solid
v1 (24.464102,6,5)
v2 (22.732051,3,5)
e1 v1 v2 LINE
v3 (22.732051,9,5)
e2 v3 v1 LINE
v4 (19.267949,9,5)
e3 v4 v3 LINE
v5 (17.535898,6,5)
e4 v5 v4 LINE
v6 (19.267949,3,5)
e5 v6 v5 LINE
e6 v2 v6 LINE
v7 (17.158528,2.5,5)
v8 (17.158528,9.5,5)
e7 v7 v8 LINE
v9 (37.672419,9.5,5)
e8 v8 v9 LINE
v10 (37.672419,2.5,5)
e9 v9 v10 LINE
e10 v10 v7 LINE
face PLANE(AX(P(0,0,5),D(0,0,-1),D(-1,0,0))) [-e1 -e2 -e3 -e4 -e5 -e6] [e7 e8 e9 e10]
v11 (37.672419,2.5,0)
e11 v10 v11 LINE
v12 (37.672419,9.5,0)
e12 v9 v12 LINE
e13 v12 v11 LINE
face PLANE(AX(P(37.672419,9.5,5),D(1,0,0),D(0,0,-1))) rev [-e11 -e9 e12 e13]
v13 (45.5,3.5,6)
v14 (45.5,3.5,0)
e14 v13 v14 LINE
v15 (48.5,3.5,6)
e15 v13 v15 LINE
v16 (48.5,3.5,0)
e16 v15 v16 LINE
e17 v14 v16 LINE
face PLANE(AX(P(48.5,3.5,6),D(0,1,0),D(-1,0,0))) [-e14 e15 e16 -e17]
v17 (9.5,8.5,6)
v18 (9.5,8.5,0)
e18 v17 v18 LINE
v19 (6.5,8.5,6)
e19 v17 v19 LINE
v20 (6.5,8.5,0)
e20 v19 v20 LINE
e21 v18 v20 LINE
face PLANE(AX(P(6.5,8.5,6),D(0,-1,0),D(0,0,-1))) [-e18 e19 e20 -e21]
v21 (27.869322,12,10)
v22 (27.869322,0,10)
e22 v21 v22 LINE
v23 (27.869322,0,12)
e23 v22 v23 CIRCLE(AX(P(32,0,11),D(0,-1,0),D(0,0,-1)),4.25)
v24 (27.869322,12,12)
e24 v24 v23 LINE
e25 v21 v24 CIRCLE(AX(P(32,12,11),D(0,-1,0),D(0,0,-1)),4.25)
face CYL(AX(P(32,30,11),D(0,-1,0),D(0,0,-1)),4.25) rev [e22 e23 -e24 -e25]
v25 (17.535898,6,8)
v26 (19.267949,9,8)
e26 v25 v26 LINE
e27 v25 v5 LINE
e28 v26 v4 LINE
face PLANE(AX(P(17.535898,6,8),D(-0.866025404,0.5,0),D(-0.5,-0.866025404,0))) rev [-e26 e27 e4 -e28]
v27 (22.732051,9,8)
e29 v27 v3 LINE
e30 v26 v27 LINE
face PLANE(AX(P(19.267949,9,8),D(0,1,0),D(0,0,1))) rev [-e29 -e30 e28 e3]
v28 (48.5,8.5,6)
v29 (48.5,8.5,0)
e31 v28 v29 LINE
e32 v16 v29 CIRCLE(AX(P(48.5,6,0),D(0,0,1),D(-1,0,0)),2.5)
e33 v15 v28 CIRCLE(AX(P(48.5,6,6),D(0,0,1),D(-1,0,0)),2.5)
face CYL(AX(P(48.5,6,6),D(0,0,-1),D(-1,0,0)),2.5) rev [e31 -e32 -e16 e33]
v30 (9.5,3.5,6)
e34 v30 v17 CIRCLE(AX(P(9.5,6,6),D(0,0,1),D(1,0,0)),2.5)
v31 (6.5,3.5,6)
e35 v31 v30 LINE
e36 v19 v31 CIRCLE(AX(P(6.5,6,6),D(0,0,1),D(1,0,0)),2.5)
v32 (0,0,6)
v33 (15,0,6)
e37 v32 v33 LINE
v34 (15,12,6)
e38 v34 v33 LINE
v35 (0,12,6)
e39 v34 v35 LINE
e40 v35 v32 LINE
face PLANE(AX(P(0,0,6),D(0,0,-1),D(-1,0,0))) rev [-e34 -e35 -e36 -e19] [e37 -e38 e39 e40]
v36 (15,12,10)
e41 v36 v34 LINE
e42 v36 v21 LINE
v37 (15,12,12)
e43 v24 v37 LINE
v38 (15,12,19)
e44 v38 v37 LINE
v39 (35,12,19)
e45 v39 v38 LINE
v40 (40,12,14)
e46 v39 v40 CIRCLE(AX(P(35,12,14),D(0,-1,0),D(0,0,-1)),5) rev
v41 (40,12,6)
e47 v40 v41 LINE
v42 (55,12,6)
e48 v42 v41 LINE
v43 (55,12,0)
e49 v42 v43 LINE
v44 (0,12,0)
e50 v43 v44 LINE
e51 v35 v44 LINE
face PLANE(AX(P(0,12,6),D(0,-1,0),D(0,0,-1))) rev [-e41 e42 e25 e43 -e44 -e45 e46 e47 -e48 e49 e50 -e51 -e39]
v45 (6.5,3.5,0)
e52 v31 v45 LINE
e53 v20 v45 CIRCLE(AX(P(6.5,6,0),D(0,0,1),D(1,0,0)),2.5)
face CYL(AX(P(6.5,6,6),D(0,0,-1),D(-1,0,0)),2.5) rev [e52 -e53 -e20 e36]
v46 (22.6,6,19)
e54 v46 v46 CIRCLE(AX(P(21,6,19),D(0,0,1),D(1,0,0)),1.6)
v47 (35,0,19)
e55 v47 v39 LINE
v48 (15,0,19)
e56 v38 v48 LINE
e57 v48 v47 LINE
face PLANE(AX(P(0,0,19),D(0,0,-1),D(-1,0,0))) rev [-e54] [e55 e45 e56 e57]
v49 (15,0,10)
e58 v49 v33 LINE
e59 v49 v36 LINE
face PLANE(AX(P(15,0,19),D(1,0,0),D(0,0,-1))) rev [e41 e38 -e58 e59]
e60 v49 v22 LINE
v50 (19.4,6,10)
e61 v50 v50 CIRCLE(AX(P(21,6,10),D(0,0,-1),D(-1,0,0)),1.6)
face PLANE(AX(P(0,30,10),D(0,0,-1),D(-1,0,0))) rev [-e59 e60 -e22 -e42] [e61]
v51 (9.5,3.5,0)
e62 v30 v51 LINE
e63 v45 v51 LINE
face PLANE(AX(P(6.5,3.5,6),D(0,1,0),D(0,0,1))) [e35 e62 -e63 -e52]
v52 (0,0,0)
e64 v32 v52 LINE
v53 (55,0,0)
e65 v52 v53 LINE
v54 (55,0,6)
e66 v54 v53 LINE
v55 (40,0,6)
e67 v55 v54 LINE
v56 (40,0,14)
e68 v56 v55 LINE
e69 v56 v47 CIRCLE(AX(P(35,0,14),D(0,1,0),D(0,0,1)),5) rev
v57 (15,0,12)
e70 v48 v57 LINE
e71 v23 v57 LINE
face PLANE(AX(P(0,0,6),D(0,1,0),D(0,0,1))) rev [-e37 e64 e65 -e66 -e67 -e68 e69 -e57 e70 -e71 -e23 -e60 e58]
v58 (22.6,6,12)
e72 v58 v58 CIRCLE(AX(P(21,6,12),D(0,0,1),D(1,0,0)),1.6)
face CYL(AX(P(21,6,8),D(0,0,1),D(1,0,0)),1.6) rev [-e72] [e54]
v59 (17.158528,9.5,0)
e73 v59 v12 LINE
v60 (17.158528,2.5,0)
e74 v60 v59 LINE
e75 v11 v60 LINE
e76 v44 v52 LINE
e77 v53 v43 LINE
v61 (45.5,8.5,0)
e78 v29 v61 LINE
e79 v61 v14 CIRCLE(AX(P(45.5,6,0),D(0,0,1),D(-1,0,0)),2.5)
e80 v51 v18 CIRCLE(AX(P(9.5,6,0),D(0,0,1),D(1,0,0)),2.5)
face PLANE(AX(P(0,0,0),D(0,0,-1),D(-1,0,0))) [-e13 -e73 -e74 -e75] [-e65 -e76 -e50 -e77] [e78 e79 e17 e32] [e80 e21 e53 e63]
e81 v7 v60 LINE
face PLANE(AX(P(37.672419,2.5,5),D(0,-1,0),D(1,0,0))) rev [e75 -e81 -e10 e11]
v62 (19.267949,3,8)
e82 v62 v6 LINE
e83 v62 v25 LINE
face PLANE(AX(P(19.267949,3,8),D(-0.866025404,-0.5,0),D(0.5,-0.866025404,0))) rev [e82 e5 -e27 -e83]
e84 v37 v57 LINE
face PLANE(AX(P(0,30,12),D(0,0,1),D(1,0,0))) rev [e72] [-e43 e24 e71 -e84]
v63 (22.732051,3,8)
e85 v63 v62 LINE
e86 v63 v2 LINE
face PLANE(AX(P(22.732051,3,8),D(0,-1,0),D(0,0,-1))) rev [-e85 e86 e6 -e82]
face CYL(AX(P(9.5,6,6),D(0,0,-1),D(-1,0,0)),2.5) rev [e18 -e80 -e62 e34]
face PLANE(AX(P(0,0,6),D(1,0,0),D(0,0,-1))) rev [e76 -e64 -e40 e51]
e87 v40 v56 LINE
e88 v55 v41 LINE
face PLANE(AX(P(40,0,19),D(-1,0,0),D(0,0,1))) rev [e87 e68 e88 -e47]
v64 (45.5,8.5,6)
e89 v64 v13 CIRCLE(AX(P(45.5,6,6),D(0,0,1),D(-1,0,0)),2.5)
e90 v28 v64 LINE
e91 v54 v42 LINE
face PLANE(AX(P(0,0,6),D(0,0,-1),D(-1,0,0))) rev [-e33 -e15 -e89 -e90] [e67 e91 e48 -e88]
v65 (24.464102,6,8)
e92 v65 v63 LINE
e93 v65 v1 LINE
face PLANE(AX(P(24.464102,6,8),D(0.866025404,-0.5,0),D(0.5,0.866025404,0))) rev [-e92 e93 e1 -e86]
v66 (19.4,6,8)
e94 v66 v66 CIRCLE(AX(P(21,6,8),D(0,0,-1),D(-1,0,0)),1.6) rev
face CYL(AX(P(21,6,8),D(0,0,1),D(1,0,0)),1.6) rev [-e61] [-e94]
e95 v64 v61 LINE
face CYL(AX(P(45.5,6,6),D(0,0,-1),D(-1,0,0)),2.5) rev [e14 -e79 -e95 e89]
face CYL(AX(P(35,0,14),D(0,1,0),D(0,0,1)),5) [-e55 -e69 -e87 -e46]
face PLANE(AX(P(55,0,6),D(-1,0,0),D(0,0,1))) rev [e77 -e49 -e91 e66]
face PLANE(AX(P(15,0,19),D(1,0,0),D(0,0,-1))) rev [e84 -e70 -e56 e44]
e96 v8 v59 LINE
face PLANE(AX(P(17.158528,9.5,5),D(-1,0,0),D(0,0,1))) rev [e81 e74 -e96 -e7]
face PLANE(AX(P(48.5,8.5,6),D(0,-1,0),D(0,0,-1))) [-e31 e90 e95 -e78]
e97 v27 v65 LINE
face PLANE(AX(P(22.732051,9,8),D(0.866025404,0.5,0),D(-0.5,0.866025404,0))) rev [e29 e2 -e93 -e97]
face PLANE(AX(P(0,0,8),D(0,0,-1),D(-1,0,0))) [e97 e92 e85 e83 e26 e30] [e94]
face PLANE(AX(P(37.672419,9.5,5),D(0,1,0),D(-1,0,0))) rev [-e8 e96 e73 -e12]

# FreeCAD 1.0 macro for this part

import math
import FreeCAD as App
import Part
import Sketcher

V = App.Vector
Q = App.Units.Quantity


def edges_at(feature, points):
    """Names of the edges that pass closest to the given points."""
    edges = feature.Shape.Edges
    near = lambda p: min(range(len(edges)), key=lambda i: edges[i].distToShape(Part.Vertex(*p))[0])
    return sorted({f"Edge{near(p) + 1}" for p in points})

doc = App.newDocument("Part")
body = doc.addObject("PartDesign::Body", "Body")

sketch1 = body.newObject("Sketcher::SketchObject", "Sketch")
sketch1.AttachmentSupport = (doc.getObject("XY_Plane"), [""])
sketch1.MapMode = "FlatFace"
sketch1.addGeometry(Part.LineSegment(V(0, 12, 0), V(0, 0, 0)), False)
sketch1.addGeometry(Part.LineSegment(V(0, 0, 0), V(55, 0, 0)), False)
sketch1.addGeometry(Part.LineSegment(V(55, 0, 0), V(55, 12, 0)), False)
sketch1.addGeometry(Part.LineSegment(V(55, 12, 0), V(0, 12, 0)), False)
sketch1.addGeometry(Part.ArcOfCircle(Part.Circle(V(6.5, 6, 0), V(0, 0, 1), 2.5), math.radians(90), math.radians(270)), False)
sketch1.addGeometry(Part.LineSegment(V(6.5, 8.5, 0), V(9.5, 8.5, 0)), False)
sketch1.addGeometry(Part.ArcOfCircle(Part.Circle(V(9.5, 6, 0), V(0, 0, 1), 2.5), math.radians(-90), math.radians(90)), False)
sketch1.addGeometry(Part.LineSegment(V(9.5, 3.5, 0), V(6.5, 3.5, 0)), False)
sketch1.addGeometry(Part.LineSegment(V(45.5, 8.5, 0), V(48.5, 8.5, 0)), False)
sketch1.addGeometry(Part.ArcOfCircle(Part.Circle(V(48.5, 6, 0), V(0, 0, 1), 2.5), math.radians(-90), math.radians(90)), False)
sketch1.addGeometry(Part.LineSegment(V(48.5, 3.5, 0), V(45.5, 3.5, 0)), False)
sketch1.addGeometry(Part.ArcOfCircle(Part.Circle(V(45.5, 6, 0), V(0, 0, 1), 2.5), math.radians(90), math.radians(270)), False)
sketch1.addConstraint(Sketcher.Constraint("Coincident", 0, 2, 1, 1))
sketch1.addConstraint(Sketcher.Constraint("Coincident", 1, 2, 2, 1))
sketch1.addConstraint(Sketcher.Constraint("Coincident", 2, 2, 3, 1))
sketch1.addConstraint(Sketcher.Constraint("Coincident", 3, 2, 0, 1))
sketch1.addConstraint(Sketcher.Constraint("Tangent", 4, 1, 5, 1))
sketch1.addConstraint(Sketcher.Constraint("Tangent", 5, 2, 6, 2))
sketch1.addConstraint(Sketcher.Constraint("Tangent", 6, 1, 7, 1))
sketch1.addConstraint(Sketcher.Constraint("Tangent", 7, 2, 4, 2))
sketch1.addConstraint(Sketcher.Constraint("Tangent", 8, 2, 9, 2))
sketch1.addConstraint(Sketcher.Constraint("Tangent", 9, 1, 10, 1))
sketch1.addConstraint(Sketcher.Constraint("Tangent", 10, 2, 11, 2))
sketch1.addConstraint(Sketcher.Constraint("Tangent", 11, 1, 8, 1))
sketch1.addConstraint(Sketcher.Constraint("Vertical", 0))
sketch1.addConstraint(Sketcher.Constraint("Horizontal", 1))
sketch1.addConstraint(Sketcher.Constraint("Vertical", 2))
sketch1.addConstraint(Sketcher.Constraint("Horizontal", 3))
sketch1.addConstraint(Sketcher.Constraint("Horizontal", 5))
sketch1.addConstraint(Sketcher.Constraint("Horizontal", 7))
sketch1.addConstraint(Sketcher.Constraint("Horizontal", 8))
sketch1.addConstraint(Sketcher.Constraint("Horizontal", 10))
sketch1.addConstraint(Sketcher.Constraint("Coincident", 0, 2, -1, 1))
sketch1.addConstraint(Sketcher.Constraint("Equal", 6, 9))
sketch1.addConstraint(Sketcher.Constraint("Horizontal", 6, 3, 9, 3))
sketch1.addConstraint(Sketcher.Constraint("Equal", 7, 8))
sketch1.addConstraint(Sketcher.Constraint("Radius", 4, 2.5))
sketch1.addConstraint(Sketcher.Constraint("DistanceX", 1, 1, 1, 2, 55.0))
sketch1.addConstraint(Sketcher.Constraint("DistanceX", 5, 1, 5, 2, 3.0))
sketch1.addConstraint(Sketcher.Constraint("DistanceY", 0, 2, 0, 1, 12.0))
sketch1.addConstraint(Sketcher.Constraint("DistanceY", -1, 1, 4, 3, 6.0))
sketch1.addConstraint(Sketcher.Constraint("DistanceX", 6, 3, 9, 3, 39.0))
sketch1.addConstraint(Sketcher.Constraint("DistanceX", -1, 1, 4, 3, 6.5))
pad1 = body.newObject("PartDesign::Pad", "Pad")
pad1.Profile = sketch1
pad1.Length = 6

sketch2 = body.newObject("Sketcher::SketchObject", "Sketch001")
sketch2.AttachmentSupport = (doc.getObject("XY_Plane"), [""])
sketch2.MapMode = "FlatFace"
sketch2.AttachmentOffset = App.Placement(V(0, 0, 6), App.Rotation())
sketch2.addGeometry(Part.LineSegment(V(15, 12, 0), V(15, 0, 0)), False)
sketch2.addGeometry(Part.LineSegment(V(15, 0, 0), V(40, 0, 0)), False)
sketch2.addGeometry(Part.LineSegment(V(40, 0, 0), V(40, 12, 0)), False)
sketch2.addGeometry(Part.LineSegment(V(40, 12, 0), V(15, 12, 0)), False)
sketch2.addConstraint(Sketcher.Constraint("Coincident", 0, 2, 1, 1))
sketch2.addConstraint(Sketcher.Constraint("Coincident", 1, 2, 2, 1))
sketch2.addConstraint(Sketcher.Constraint("Coincident", 2, 2, 3, 1))
sketch2.addConstraint(Sketcher.Constraint("Coincident", 3, 2, 0, 1))
sketch2.addConstraint(Sketcher.Constraint("Vertical", 0))
sketch2.addConstraint(Sketcher.Constraint("Horizontal", 1))
sketch2.addConstraint(Sketcher.Constraint("Vertical", 2))
sketch2.addConstraint(Sketcher.Constraint("Horizontal", 3))
sketch2.addConstraint(Sketcher.Constraint("PointOnObject", 0, 2, -1))
sketch2.addConstraint(Sketcher.Constraint("DistanceX", 1, 1, 1, 2, 25.0))
sketch2.addConstraint(Sketcher.Constraint("DistanceY", 0, 2, 0, 1, 12.0))
sketch2.addConstraint(Sketcher.Constraint("DistanceX", -1, 1, 0, 2, 15.0))
pad2 = body.newObject("PartDesign::Pad", "Pad001")
pad2.Profile = sketch2
pad2.Length = 13
doc.recompute()

fillet = body.newObject("PartDesign::Fillet", "Fillet")
fillet.Base = (pad2, edges_at(pad2, [(40, 6, 19)]))
fillet.Radius = 5

sketch3 = body.newObject("Sketcher::SketchObject", "Sketch002")
sketch3.AttachmentSupport = (doc.getObject("XZ_Plane"), [""])
sketch3.MapMode = "FlatFace"
sketch3.addGeometry(Part.LineSegment(V(27.869322, 12, 0), V(15, 12, 0)), False)
sketch3.addGeometry(Part.LineSegment(V(15, 12, 0), V(15, 10, 0)), False)
sketch3.addGeometry(Part.LineSegment(V(15, 10, 0), V(27.869322, 10, 0)), False)
sketch3.addGeometry(Part.ArcOfCircle(Part.Circle(V(32, 11, 0), V(0, 0, 1), 4.25), math.radians(-166.391039), math.radians(166.391039)), False)
sketch3.addConstraint(Sketcher.Constraint("Coincident", 0, 2, 1, 1))
sketch3.addConstraint(Sketcher.Constraint("Coincident", 1, 2, 2, 1))
sketch3.addConstraint(Sketcher.Constraint("Coincident", 2, 2, 3, 1))
sketch3.addConstraint(Sketcher.Constraint("Coincident", 3, 2, 0, 1))
sketch3.addConstraint(Sketcher.Constraint("Horizontal", 0))
sketch3.addConstraint(Sketcher.Constraint("Vertical", 1))
sketch3.addConstraint(Sketcher.Constraint("Horizontal", 2))
sketch3.addConstraint(Sketcher.Constraint("Vertical", 2, 2, 3, 2))
sketch3.addConstraint(Sketcher.Constraint("DistanceY", 1, 2, 1, 1, 2.0))
sketch3.addConstraint(Sketcher.Constraint("Radius", 3, 4.25))
sketch3.addConstraint(Sketcher.Constraint("DistanceX", -1, 1, 3, 3, 32.0))
sketch3.addConstraint(Sketcher.Constraint("DistanceY", -1, 1, 3, 3, 11.0))
sketch3.addConstraint(Sketcher.Constraint("DistanceX", -1, 1, 0, 2, 15.0))
pocket1 = body.newObject("PartDesign::Pocket", "Pocket")
pocket1.Profile = sketch3
pocket1.Length = 30

sketch4 = body.newObject("Sketcher::SketchObject", "Sketch003")
sketch4.AttachmentSupport = (doc.getObject("XY_Plane"), [""])
sketch4.MapMode = "FlatFace"
sketch4.addGeometry(Part.LineSegment(V(37.672419, 9.5, 0), V(37.672419, 2.5, 0)), False)
sketch4.addGeometry(Part.LineSegment(V(37.672419, 2.5, 0), V(17.158528, 2.5, 0)), False)
sketch4.addGeometry(Part.LineSegment(V(17.158528, 2.5, 0), V(17.158528, 9.5, 0)), False)
sketch4.addGeometry(Part.LineSegment(V(17.158528, 9.5, 0), V(37.672419, 9.5, 0)), False)
sketch4.addConstraint(Sketcher.Constraint("Coincident", 0, 2, 1, 1))
sketch4.addConstraint(Sketcher.Constraint("Coincident", 1, 2, 2, 1))
sketch4.addConstraint(Sketcher.Constraint("Coincident", 2, 2, 3, 1))
sketch4.addConstraint(Sketcher.Constraint("Coincident", 3, 2, 0, 1))
sketch4.addConstraint(Sketcher.Constraint("Vertical", 0))
sketch4.addConstraint(Sketcher.Constraint("Horizontal", 1))
sketch4.addConstraint(Sketcher.Constraint("Vertical", 2))
sketch4.addConstraint(Sketcher.Constraint("Horizontal", 3))
sketch4.addConstraint(Sketcher.Constraint("DistanceY", 0, 2, 0, 1, 7.0))
sketch4.addConstraint(Sketcher.Constraint("DistanceY", -1, 1, 0, 2, 2.5))
sketch4.addConstraint(Sketcher.Constraint("DistanceX", 1, 2, 1, 1, 20.513891))
sketch4.addConstraint(Sketcher.Constraint("DistanceX", -1, 1, 0, 2, 37.672419))
pocket2 = body.newObject("PartDesign::Pocket", "Pocket001")
pocket2.Profile = sketch4
pocket2.Length = 5
pocket2.Reversed = True

sketch5 = body.newObject("Sketcher::SketchObject", "Sketch004")
sketch5.AttachmentSupport = (doc.getObject("XY_Plane"), [""])
sketch5.MapMode = "FlatFace"
sketch5.AttachmentOffset = App.Placement(V(0, 0, 19), App.Rotation())
sketch5.addGeometry(Part.Circle(V(21, 6, 0), V(0, 0, 1), 1.6), False)
sketch5.addConstraint(Sketcher.Constraint("Diameter", 0, 3.2))
sketch5.addConstraint(Sketcher.Constraint("DistanceX", -1, 1, 0, 3, 21.0))
sketch5.addConstraint(Sketcher.Constraint("DistanceY", -1, 1, 0, 3, 6.0))
pocket3 = body.newObject("PartDesign::Pocket", "Pocket002")
pocket3.Profile = sketch5
pocket3.Length = 11

sketch6 = body.newObject("Sketcher::SketchObject", "Sketch005")
sketch6.AttachmentSupport = (doc.getObject("XY_Plane"), [""])
sketch6.MapMode = "FlatFace"
sketch6.AttachmentOffset = App.Placement(V(0, 0, 5), App.Rotation())
sketch6.addGeometry(Part.LineSegment(V(17.535898, 6, 0), V(19.267949, 9, 0)), False)
sketch6.addGeometry(Part.LineSegment(V(19.267949, 9, 0), V(22.732051, 9, 0)), False)
sketch6.addGeometry(Part.LineSegment(V(22.732051, 9, 0), V(24.464102, 6, 0)), False)
sketch6.addGeometry(Part.LineSegment(V(24.464102, 6, 0), V(22.732051, 3, 0)), False)
sketch6.addGeometry(Part.LineSegment(V(22.732051, 3, 0), V(19.267949, 3, 0)), False)
sketch6.addGeometry(Part.LineSegment(V(19.267949, 3, 0), V(17.535898, 6, 0)), False)
sketch6.addConstraint(Sketcher.Constraint("Coincident", 0, 2, 1, 1))
sketch6.addConstraint(Sketcher.Constraint("Coincident", 1, 2, 2, 1))
sketch6.addConstraint(Sketcher.Constraint("Coincident", 2, 2, 3, 1))
sketch6.addConstraint(Sketcher.Constraint("Coincident", 3, 2, 4, 1))
sketch6.addConstraint(Sketcher.Constraint("Coincident", 4, 2, 5, 1))
sketch6.addConstraint(Sketcher.Constraint("Coincident", 5, 2, 0, 1))
sketch6.addConstraint(Sketcher.Constraint("Horizontal", 1))
sketch6.addConstraint(Sketcher.Constraint("Horizontal", 4))
sketch6.addConstraint(Sketcher.Constraint("Parallel", 0, 3))
sketch6.addConstraint(Sketcher.Constraint("Parallel", 2, 5))
sketch6.addConstraint(Sketcher.Constraint("Horizontal", 2, 2, 5, 2))
sketch6.addConstraint(Sketcher.Constraint("Vertical", 1, 2, 3, 2))
sketch6.addConstraint(Sketcher.Constraint("Vertical", 0, 2, 4, 2))
sketch6.addConstraint(Sketcher.Constraint("Angle", 0, Q("60 deg")))
sketch6.addConstraint(Sketcher.Constraint("DistanceY", -1, 1, 0, 2, 9.0))
sketch6.addConstraint(Sketcher.Constraint("DistanceY", -1, 1, 2, 2, 6.0))
sketch6.addConstraint(Sketcher.Constraint("DistanceX", 1, 1, 1, 2, 3.464102))
sketch6.addConstraint(Sketcher.Constraint("DistanceX", -1, 1, 2, 2, 24.464102))
pocket4 = body.newObject("PartDesign::Pocket", "Pocket003")
pocket4.Profile = sketch6
pocket4.Length = 3
pocket4.Reversed = True

doc.recompute()
